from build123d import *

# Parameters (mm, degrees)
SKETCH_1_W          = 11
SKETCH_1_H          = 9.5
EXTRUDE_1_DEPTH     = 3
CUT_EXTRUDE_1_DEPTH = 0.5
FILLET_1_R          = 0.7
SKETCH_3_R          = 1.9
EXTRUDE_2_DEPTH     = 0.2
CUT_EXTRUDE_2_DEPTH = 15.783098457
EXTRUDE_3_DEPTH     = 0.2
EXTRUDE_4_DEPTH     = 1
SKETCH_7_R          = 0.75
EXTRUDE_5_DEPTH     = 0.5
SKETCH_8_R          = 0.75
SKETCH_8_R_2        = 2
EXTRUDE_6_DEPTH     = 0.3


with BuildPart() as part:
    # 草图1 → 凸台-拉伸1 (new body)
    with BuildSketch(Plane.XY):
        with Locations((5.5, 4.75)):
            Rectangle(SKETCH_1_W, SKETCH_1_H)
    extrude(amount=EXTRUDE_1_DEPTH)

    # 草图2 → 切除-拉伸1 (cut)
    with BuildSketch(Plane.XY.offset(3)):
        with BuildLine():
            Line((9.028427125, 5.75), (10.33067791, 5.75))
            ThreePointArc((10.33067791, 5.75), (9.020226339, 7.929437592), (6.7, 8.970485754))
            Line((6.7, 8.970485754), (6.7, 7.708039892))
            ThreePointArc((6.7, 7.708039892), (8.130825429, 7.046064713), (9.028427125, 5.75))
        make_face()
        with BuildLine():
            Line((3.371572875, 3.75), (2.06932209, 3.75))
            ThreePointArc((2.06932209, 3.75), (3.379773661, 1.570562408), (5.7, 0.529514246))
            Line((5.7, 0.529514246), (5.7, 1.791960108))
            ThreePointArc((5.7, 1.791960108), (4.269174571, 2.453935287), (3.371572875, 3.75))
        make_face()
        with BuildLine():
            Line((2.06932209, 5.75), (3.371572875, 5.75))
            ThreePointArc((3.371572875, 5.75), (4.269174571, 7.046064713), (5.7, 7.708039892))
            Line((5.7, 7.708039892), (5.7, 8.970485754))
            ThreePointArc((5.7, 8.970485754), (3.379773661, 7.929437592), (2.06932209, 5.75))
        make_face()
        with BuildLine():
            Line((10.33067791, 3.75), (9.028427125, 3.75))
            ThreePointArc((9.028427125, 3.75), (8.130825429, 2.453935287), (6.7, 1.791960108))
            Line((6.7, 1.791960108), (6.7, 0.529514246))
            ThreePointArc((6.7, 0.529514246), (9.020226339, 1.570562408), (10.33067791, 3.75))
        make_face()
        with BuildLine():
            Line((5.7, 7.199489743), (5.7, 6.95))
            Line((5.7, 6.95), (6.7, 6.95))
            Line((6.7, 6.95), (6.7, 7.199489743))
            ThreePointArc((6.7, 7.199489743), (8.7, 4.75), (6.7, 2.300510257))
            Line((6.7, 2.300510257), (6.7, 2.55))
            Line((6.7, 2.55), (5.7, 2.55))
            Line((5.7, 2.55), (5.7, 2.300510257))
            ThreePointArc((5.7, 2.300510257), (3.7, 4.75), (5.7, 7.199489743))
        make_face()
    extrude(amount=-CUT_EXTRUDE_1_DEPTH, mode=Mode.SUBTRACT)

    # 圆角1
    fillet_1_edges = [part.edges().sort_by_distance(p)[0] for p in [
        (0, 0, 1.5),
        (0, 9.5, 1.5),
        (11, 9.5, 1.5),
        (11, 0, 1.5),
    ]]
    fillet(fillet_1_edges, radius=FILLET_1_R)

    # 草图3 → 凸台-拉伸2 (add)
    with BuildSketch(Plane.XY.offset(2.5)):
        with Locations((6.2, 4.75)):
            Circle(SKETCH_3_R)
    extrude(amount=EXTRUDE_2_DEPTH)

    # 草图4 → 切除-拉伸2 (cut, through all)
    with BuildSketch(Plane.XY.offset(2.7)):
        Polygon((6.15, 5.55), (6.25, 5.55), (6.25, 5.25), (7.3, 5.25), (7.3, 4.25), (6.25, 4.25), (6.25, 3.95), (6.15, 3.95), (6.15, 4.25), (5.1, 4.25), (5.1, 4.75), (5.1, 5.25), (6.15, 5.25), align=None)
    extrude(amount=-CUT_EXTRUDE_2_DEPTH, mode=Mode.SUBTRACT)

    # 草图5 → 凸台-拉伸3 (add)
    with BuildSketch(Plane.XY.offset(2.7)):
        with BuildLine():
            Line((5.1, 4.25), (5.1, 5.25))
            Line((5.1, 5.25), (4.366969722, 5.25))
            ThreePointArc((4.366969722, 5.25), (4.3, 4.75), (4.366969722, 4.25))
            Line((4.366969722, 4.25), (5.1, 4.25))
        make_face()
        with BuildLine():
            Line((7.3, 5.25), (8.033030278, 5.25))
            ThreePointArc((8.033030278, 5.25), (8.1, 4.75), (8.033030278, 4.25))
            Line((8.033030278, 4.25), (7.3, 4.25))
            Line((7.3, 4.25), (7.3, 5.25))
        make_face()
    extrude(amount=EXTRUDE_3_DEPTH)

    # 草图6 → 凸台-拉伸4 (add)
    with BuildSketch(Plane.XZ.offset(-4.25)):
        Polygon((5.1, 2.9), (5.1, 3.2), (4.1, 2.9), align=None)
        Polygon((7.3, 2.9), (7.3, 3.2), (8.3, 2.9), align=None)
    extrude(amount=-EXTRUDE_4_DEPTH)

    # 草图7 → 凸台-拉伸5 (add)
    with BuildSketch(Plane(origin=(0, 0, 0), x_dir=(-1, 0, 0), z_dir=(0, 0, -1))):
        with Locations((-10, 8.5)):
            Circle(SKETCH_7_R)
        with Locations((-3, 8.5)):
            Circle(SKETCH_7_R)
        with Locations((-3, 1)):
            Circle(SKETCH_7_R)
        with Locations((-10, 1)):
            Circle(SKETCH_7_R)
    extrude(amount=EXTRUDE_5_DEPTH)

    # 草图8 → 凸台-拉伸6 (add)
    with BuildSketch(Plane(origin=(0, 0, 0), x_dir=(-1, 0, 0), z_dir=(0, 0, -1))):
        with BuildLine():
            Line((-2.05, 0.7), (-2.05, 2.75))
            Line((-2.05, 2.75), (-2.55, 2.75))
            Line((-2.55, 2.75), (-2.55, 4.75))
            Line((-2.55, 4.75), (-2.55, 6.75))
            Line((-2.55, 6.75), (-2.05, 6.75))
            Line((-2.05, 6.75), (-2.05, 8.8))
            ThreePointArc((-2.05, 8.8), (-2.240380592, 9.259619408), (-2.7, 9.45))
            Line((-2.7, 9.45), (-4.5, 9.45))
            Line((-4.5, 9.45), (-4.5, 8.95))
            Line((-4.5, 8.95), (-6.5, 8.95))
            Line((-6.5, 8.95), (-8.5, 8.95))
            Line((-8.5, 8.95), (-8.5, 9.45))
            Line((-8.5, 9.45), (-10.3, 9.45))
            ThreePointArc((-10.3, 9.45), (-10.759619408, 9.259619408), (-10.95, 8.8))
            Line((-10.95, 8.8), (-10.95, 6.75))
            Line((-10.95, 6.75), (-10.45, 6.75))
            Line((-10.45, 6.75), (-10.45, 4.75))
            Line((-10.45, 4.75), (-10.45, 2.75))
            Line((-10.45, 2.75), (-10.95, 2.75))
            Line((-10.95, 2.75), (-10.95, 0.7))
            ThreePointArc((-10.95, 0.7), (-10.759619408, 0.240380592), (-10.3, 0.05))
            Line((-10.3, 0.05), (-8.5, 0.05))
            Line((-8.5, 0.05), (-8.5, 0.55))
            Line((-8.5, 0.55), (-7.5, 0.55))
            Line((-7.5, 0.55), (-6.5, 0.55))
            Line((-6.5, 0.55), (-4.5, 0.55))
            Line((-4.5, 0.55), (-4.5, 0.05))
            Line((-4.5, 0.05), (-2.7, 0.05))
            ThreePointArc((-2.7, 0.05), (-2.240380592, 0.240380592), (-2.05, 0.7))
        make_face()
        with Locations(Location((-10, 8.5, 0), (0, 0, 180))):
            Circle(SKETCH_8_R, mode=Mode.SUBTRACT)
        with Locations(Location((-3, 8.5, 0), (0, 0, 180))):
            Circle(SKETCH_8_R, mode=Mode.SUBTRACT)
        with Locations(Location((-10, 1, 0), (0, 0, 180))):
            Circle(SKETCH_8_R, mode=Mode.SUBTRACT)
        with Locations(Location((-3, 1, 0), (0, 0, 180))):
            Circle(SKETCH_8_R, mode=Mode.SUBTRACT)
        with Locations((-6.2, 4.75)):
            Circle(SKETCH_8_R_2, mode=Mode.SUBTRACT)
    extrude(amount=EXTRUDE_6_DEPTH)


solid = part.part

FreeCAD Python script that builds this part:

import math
import FreeCAD as App
import Part
import Sketcher
from FreeCAD import Vector


def edges_at(feature, points):
    """Names of the edges that pass closest to the given points."""
    edges = feature.Shape.Edges
    near = lambda p: min(range(len(edges)), key=lambda i: edges[i].distToShape(Part.Vertex(*p))[0])
    return sorted({f"Edge{near(p) + 1}" for p in points})

doc = App.newDocument("Part")
body = doc.addObject("PartDesign::Body", "Body")

# Sketch on XY plane
sketch1 = body.newObject("Sketcher::SketchObject", "Sketch")
sketch1.AttachmentSupport = (doc.getObject("XY_Plane"), [""])
sketch1.MapMode = "FlatFace"
sketch1.addGeometry(Part.LineSegment(Vector(0, 9.5, 0), Vector(0, 0, 0)), False)
sketch1.addGeometry(Part.LineSegment(Vector(0, 0, 0), Vector(11, 0, 0)), False)
sketch1.addGeometry(Part.LineSegment(Vector(11, 0, 0), Vector(11, 9.5, 0)), False)
sketch1.addGeometry(Part.LineSegment(Vector(11, 9.5, 0), Vector(0, 9.5, 0)), False)
sketch1.addConstraint(Sketcher.Constraint("Coincident", 0, 2, 1, 1))
sketch1.addConstraint(Sketcher.Constraint("Coincident", 1, 2, 2, 1))
sketch1.addConstraint(Sketcher.Constraint("Coincident", 2, 2, 3, 1))
sketch1.addConstraint(Sketcher.Constraint("Coincident", 3, 2, 0, 1))
sketch1.addConstraint(Sketcher.Constraint("Vertical", 0))
sketch1.addConstraint(Sketcher.Constraint("Horizontal", 1))
sketch1.addConstraint(Sketcher.Constraint("Vertical", 2))
sketch1.addConstraint(Sketcher.Constraint("Horizontal", 3))
sketch1.addConstraint(Sketcher.Constraint("Coincident", 0, 2, -1, 1))
sketch1.addConstraint(Sketcher.Constraint("DistanceX", 1, 1, 1, 2, 11.0))
sketch1.addConstraint(Sketcher.Constraint("DistanceY", 0, 2, 0, 1, 9.5))
pad1 = body.newObject("PartDesign::Pad", "Pad")
pad1.Profile = sketch1
pad1.Length = 3

# Sketch on XY plane
sketch2 = body.newObject("Sketcher::SketchObject", "Sketch001")
sketch2.AttachmentSupport = (doc.getObject("XY_Plane"), [""])
sketch2.MapMode = "FlatFace"
sketch2.AttachmentOffset = App.Placement(Vector(0, 0, 3), App.Rotation())
sketch2.addGeometry(Part.LineSegment(Vector(9.028427, 5.75, 0), Vector(10.330678, 5.75, 0)), False)
sketch2.addGeometry(Part.ArcOfCircle(Part.Circle(Vector(6.2, 4.75, 0), Vector(0, 0, 1), 4.25), math.radians(13.608961), math.radians(83.243673)), False)
sketch2.addGeometry(Part.LineSegment(Vector(6.7, 8.970486, 0), Vector(6.7, 7.70804, 0)), False)
sketch2.addGeometry(Part.ArcOfCircle(Part.Circle(Vector(6.2, 4.75, 0), Vector(0, 0, 1), 3), math.radians(19.471221), math.radians(80.405932)), False)
sketch2.addGeometry(Part.LineSegment(Vector(3.371573, 3.75, 0), Vector(2.069322, 3.75, 0)), False)
sketch2.addGeometry(Part.ArcOfCircle(Part.Circle(Vector(6.2, 4.75, 0), Vector(0, 0, 1), 4.25), math.radians(-166.391039), math.radians(-96.756327)), False)
sketch2.addGeometry(Part.LineSegment(Vector(5.7, 0.529514, 0), Vector(5.7, 1.79196, 0)), False)
sketch2.addGeometry(Part.ArcOfCircle(Part.Circle(Vector(6.2, 4.75, 0), Vector(0, 0, 1), 3), math.radians(-160.528779), math.radians(-99.594068)), False)
sketch2.addGeometry(Part.LineSegment(Vector(2.069322, 5.75, 0), Vector(3.371573, 5.75, 0)), False)
sketch2.addGeometry(Part.ArcOfCircle(Part.Circle(Vector(6.2, 4.75, 0), Vector(0, 0, 1), 3), math.radians(99.594068), math.radians(160.528779)), False)
sketch2.addGeometry(Part.LineSegment(Vector(5.7, 7.70804, 0), Vector(5.7, 8.970486, 0)), False)
sketch2.addGeometry(Part.ArcOfCircle(Part.Circle(Vector(6.2, 4.75, 0), Vector(0, 0, 1), 4.25), math.radians(96.756327), math.radians(166.391039)), False)
sketch2.addGeometry(Part.LineSegment(Vector(10.330678, 3.75, 0), Vector(9.028427, 3.75, 0)), False)
sketch2.addGeometry(Part.ArcOfCircle(Part.Circle(Vector(6.2, 4.75, 0), Vector(0, 0, 1), 3), math.radians(-80.405932), math.radians(-19.471221)), False)
sketch2.addGeometry(Part.LineSegment(Vector(6.7, 1.79196, 0), Vector(6.7, 0.529514, 0)), False)
sketch2.addGeometry(Part.ArcOfCircle(Part.Circle(Vector(6.2, 4.75, 0), Vector(0, 0, 1), 4.25), math.radians(-83.243673), math.radians(-13.608961)), False)
sketch2.addGeometry(Part.LineSegment(Vector(5.7, 6.95, 0), Vector(5.7, 7.19949, 0)), False)
sketch2.addGeometry(Part.ArcOfCircle(Part.Circle(Vector(6.2, 4.75, 0), Vector(0, 0, 1), 2.5), math.radians(101.536959), math.radians(258.463041)), False)
sketch2.addGeometry(Part.LineSegment(Vector(5.7, 2.30051, 0), Vector(5.7, 2.55, 0)), False)
sketch2.addGeometry(Part.LineSegment(Vector(5.7, 2.55, 0), Vector(6.7, 2.55, 0)), False)
sketch2.addGeometry(Part.LineSegment(Vector(6.7, 2.55, 0), Vector(6.7, 2.30051, 0)), False)
sketch2.addGeometry(Part.ArcOfCircle(Part.Circle(Vector(6.2, 4.75, 0), Vector(0, 0, 1), 2.5), math.radians(-78.463041), math.radians(78.463041)), False)
sketch2.addGeometry(Part.LineSegment(Vector(6.7, 7.19949, 0), Vector(6.7, 6.95, 0)), False)
sketch2.addGeometry(Part.LineSegment(Vector(6.7, 6.95, 0), Vector(5.7, 6.95, 0)), False)
sketch2.addConstraint(Sketcher.Constraint("Coincident", 0, 2, 1, 1))
sketch2.addConstraint(Sketcher.Constraint("Coincident", 1, 2, 2, 1))
sketch2.addConstraint(Sketcher.Constraint("Coincident", 2, 2, 3, 2))
sketch2.addConstraint(Sketcher.Constraint("Coincident", 3, 1, 0, 1))
sketch2.addConstraint(Sketcher.Constraint("Coincident", 4, 2, 5, 1))
sketch2.addConstraint(Sketcher.Constraint("Coincident", 5, 2, 6, 1))
sketch2.addConstraint(Sketcher.Constraint("Coincident", 6, 2, 7, 2))
sketch2.addConstraint(Sketcher.Constraint("Coincident", 7, 1, 4, 1))
sketch2.addConstraint(Sketcher.Constraint("Coincident", 8, 2, 9, 2))
sketch2.addConstraint(Sketcher.Constraint("Coincident", 9, 1, 10, 1))
sketch2.addConstraint(Sketcher.Constraint("Coincident", 10, 2, 11, 1))
sketch2.addConstraint(Sketcher.Constraint("Coincident", 11, 2, 8, 1))
sketch2.addConstraint(Sketcher.Constraint("Coincident", 12, 2, 13, 2))
sketch2.addConstraint(Sketcher.Constraint("Coincident", 13, 1, 14, 1))
sketch2.addConstraint(Sketcher.Constraint("Coincident", 14, 2, 15, 1))
sketch2.addConstraint(Sketcher.Constraint("Coincident", 15, 2, 12, 1))
sketch2.addConstraint(Sketcher.Constraint("Coincident", 16, 2, 17, 1))
sketch2.addConstraint(Sketcher.Constraint("Coincident", 17, 2, 18, 1))
sketch2.addConstraint(Sketcher.Constraint("Coincident", 18, 2, 19, 1))
sketch2.addConstraint(Sketcher.Constraint("Coincident", 19, 2, 20, 1))
sketch2.addConstraint(Sketcher.Constraint("Coincident", 20, 2, 21, 1))
sketch2.addConstraint(Sketcher.Constraint("Coincident", 21, 2, 22, 1))
sketch2.addConstraint(Sketcher.Constraint("Coincident", 22, 2, 23, 1))
sketch2.addConstraint(Sketcher.Constraint("Coincident", 23, 2, 16, 1))
sketch2.addConstraint(Sketcher.Constraint("Horizontal", 0))
sketch2.addConstraint(Sketcher.Constraint("Vertical", 2))
sketch2.addConstraint(Sketcher.Constraint("Horizontal", 4))
sketch2.addConstraint(Sketcher.Constraint("Vertical", 6))
sketch2.addConstraint(Sketcher.Constraint("Horizontal", 8))
sketch2.addConstraint(Sketcher.Constraint("Vertical", 10))
sketch2.addConstraint(Sketcher.Constraint("Horizontal", 12))
sketch2.addConstraint(Sketcher.Constraint("Vertical", 14))
sketch2.addConstraint(Sketcher.Constraint("Vertical", 16))
sketch2.addConstraint(Sketcher.Constraint("Vertical", 18))
sketch2.addConstraint(Sketcher.Constraint("Horizontal", 19))
sketch2.addConstraint(Sketcher.Constraint("Vertical", 20))
sketch2.addConstraint(Sketcher.Constraint("Vertical", 22))
sketch2.addConstraint(Sketcher.Constraint("Horizontal", 23))
sketch2.addConstraint(Sketcher.Constraint("Coincident", 3, 3, 1, 3))
sketch2.addConstraint(Sketcher.Constraint("Coincident", 5, 3, 1, 3))
sketch2.addConstraint(Sketcher.Constraint("Coincident", 7, 3, 1, 3))
sketch2.addConstraint(Sketcher.Constraint("Coincident", 9, 3, 1, 3))
sketch2.addConstraint(Sketcher.Constraint("Coincident", 11, 3, 1, 3))
sketch2.addConstraint(Sketcher.Constraint("Coincident", 13, 3, 1, 3))
sketch2.addConstraint(Sketcher.Constraint("Coincident", 15, 3, 1, 3))
sketch2.addConstraint(Sketcher.Constraint("Coincident", 17, 3, 1, 3))
sketch2.addConstraint(Sketcher.Constraint("Coincident", 21, 3, 1, 3))
sketch2.addConstraint(Sketcher.Constraint("Equal", 1, 5))
sketch2.addConstraint(Sketcher.Constraint("Equal", 3, 7))
sketch2.addConstraint(Sketcher.Constraint("Equal", 7, 9))
sketch2.addConstraint(Sketcher.Constraint("Equal", 5, 11))
sketch2.addConstraint(Sketcher.Constraint("Equal", 9, 13))
sketch2.addConstraint(Sketcher.Constraint("Equal", 11, 15))
sketch2.addConstraint(Sketcher.Constraint("Equal", 17, 21))
sketch2.addConstraint(Sketcher.Constraint("Horizontal", 3, 1, 8, 2))
sketch2.addConstraint(Sketcher.Constraint("Horizontal", 2, 2, 9, 1))
sketch2.addConstraint(Sketcher.Constraint("Horizontal", 7, 1, 12, 2))
sketch2.addConstraint(Sketcher.Constraint("Horizontal", 6, 2, 13, 1))
sketch2.addConstraint(Sketcher.Constraint("Horizontal", 17, 2, 20, 2))
sketch2.addConstraint(Sketcher.Constraint("Horizontal", 16, 2, 21, 2))
sketch2.addConstraint(Sketcher.Constraint("Vertical", 7, 1, 8, 2))
sketch2.addConstraint(Sketcher.Constraint("Vertical", 6, 2, 9, 1))
sketch2.addConstraint(Sketcher.Constraint("Vertical", 10, 2, 16, 2))
sketch2.addConstraint(Sketcher.Constraint("Vertical", 16, 2, 17, 2))
sketch2.addConstraint(Sketcher.Constraint("Equal", 16, 18))
sketch2.addConstraint(Sketcher.Constraint("Radius", 3, 3.0))
sketch2.addConstraint(Sketcher.Constraint("Radius", 17, 2.5))
sketch2.addConstraint(Sketcher.Constraint("DistanceX", 19, 1, 19, 2, 1.0))
sketch2.addConstraint(Sketcher.Constraint("Radius", 1, 4.25))
sketch2.addConstraint(Sketcher.Constraint("DistanceY", 1, 3, 0, 2, 1.0))
sketch2.addConstraint(Sketcher.Constraint("DistanceX", -1, 1, 1, 3, 6.2))
sketch2.addConstraint(Sketcher.Constraint("DistanceY", -1, 1, 1, 3, 4.75))
sketch2.addConstraint(Sketcher.Constraint("DistanceY", -1, 1, 18, 2, 2.55))
pocket1 = body.newObject("PartDesign::Pocket", "Pocket")
pocket1.Profile = sketch2
pocket1.Length = 0.5
doc.recompute()

fillet = body.newObject("PartDesign::Fillet", "Fillet")
fillet.Base = (pocket1, edges_at(pocket1, [
    (0, 0, 1.5),
    (0, 9.5, 1.5),
    (11, 9.5, 1.5),
    (11, 0, 1.5),
]))
fillet.Radius = 0.7

# Sketch on XY plane
sketch3 = body.newObject("Sketcher::SketchObject", "Sketch002")
sketch3.AttachmentSupport = (doc.getObject("XY_Plane"), [""])
sketch3.MapMode = "FlatFace"
sketch3.AttachmentOffset = App.Placement(Vector(0, 0, 2.5), App.Rotation())
sketch3.addGeometry(Part.Circle(Vector(6.2, 4.75, 0), Vector(0, 0, 1), 1.9), False)
sketch3.addConstraint(Sketcher.Constraint("Diameter", 0, 3.8))
sketch3.addConstraint(Sketcher.Constraint("DistanceX", -1, 1, 0, 3, 6.2))
sketch3.addConstraint(Sketcher.Constraint("DistanceY", -1, 1, 0, 3, 4.75))
pad2 = body.newObject("PartDesign::Pad", "Pad001")
pad2.Profile = sketch3
pad2.Length = 0.2

# Sketch on XY plane
sketch4 = body.newObject("Sketcher::SketchObject", "Sketch003")
sketch4.AttachmentSupport = (doc.getObject("XY_Plane"), [""])
sketch4.MapMode = "FlatFace"
sketch4.AttachmentOffset = App.Placement(Vector(0, 0, 2.7), App.Rotation())
sketch4.addGeometry(Part.LineSegment(Vector(6.25, 5.55, 0), Vector(6.15, 5.55, 0)), False)
sketch4.addGeometry(Part.LineSegment(Vector(6.15, 5.55, 0), Vector(6.15, 5.25, 0)), False)
sketch4.addGeometry(Part.LineSegment(Vector(6.15, 5.25, 0), Vector(5.1, 5.25, 0)), False)
sketch4.addGeometry(Part.LineSegment(Vector(5.1, 5.25, 0), Vector(5.1, 4.25, 0)), False)
sketch4.addGeometry(Part.LineSegment(Vector(5.1, 4.25, 0), Vector(6.15, 4.25, 0)), False)
sketch4.addGeometry(Part.LineSegment(Vector(6.15, 4.25, 0), Vector(6.15, 3.95, 0)), False)
sketch4.addGeometry(Part.LineSegment(Vector(6.15, 3.95, 0), Vector(6.25, 3.95, 0)), False)
sketch4.addGeometry(Part.LineSegment(Vector(6.25, 3.95, 0), Vector(6.25, 4.25, 0)), False)
sketch4.addGeometry(Part.LineSegment(Vector(6.25, 4.25, 0), Vector(7.3, 4.25, 0)), False)
sketch4.addGeometry(Part.LineSegment(Vector(7.3, 4.25, 0), Vector(7.3, 5.25, 0)), False)
sketch4.addGeometry(Part.LineSegment(Vector(7.3, 5.25, 0), Vector(6.25, 5.25, 0)), False)
sketch4.addGeometry(Part.LineSegment(Vector(6.25, 5.25, 0), Vector(6.25, 5.55, 0)), False)
sketch4.addConstraint(Sketcher.Constraint("Coincident", 0, 2, 1, 1))
sketch4.addConstraint(Sketcher.Constraint("Coincident", 1, 2, 2, 1))
sketch4.addConstraint(Sketcher.Constraint("Coincident", 2, 2, 3, 1))
sketch4.addConstraint(Sketcher.Constraint("Coincident", 3, 2, 4, 1))
sketch4.addConstraint(Sketcher.Constraint("Coincident", 4, 2, 5, 1))
sketch4.addConstraint(Sketcher.Constraint("Coincident", 5, 2, 6, 1))
sketch4.addConstraint(Sketcher.Constraint("Coincident", 6, 2, 7, 1))
sketch4.addConstraint(Sketcher.Constraint("Coincident", 7, 2, 8, 1))
sketch4.addConstraint(Sketcher.Constraint("Coincident", 8, 2, 9, 1))
sketch4.addConstraint(Sketcher.Constraint("Coincident", 9, 2, 10, 1))
sketch4.addConstraint(Sketcher.Constraint("Coincident", 10, 2, 11, 1))
sketch4.addConstraint(Sketcher.Constraint("Coincident", 11, 2, 0, 1))
sketch4.addConstraint(Sketcher.Constraint("Horizontal", 0))
sketch4.addConstraint(Sketcher.Constraint("Vertical", 1))
sketch4.addConstraint(Sketcher.Constraint("Horizontal", 2))
sketch4.addConstraint(Sketcher.Constraint("Vertical", 3))
sketch4.addConstraint(Sketcher.Constraint("Horizontal", 4))
sketch4.addConstraint(Sketcher.Constraint("Vertical", 5))
sketch4.addConstraint(Sketcher.Constraint("Horizontal", 6))
sketch4.addConstraint(Sketcher.Constraint("Vertical", 7))
sketch4.addConstraint(Sketcher.Constraint("Horizontal", 8))
sketch4.addConstraint(Sketcher.Constraint("Vertical", 9))
sketch4.addConstraint(Sketcher.Constraint("Horizontal", 10))
sketch4.addConstraint(Sketcher.Constraint("Vertical", 11))
sketch4.addConstraint(Sketcher.Constraint("Horizontal", 4, 2, 7, 2))
sketch4.addConstraint(Sketcher.Constraint("Horizontal", 2, 2, 9, 2))
sketch4.addConstraint(Sketcher.Constraint("Vertical", 1, 2, 4, 2))
sketch4.addConstraint(Sketcher.Constraint("Vertical", 7, 2, 10, 2))
sketch4.addConstraint(Sketcher.Constraint("Equal", 4, 8))
sketch4.addConstraint(Sketcher.Constraint("Equal", 1, 5))
sketch4.addConstraint(Sketcher.Constraint("DistanceY", 3, 2, 3, 1, 1.0))
sketch4.addConstraint(Sketcher.Constraint("DistanceX", 0, 2, 0, 1, 0.1))
sketch4.addConstraint(Sketcher.Constraint("DistanceY", 1, 2, 1, 1, 0.3))
sketch4.addConstraint(Sketcher.Constraint("DistanceX", 2, 2, 2, 1, 1.05))
sketch4.addConstraint(Sketcher.Constraint("DistanceX", -1, 1, 2, 2, 5.1))
sketch4.addConstraint(Sketcher.Constraint("DistanceY", -1, 1, 0, 2, 5.55))
pocket2 = body.newObject("PartDesign::Pocket", "Pocket001")
pocket2.Profile = sketch4
pocket2.Type = "ThroughAll"

# Sketch on XY plane
sketch5 = body.newObject("Sketcher::SketchObject", "Sketch004")
sketch5.AttachmentSupport = (doc.getObject("XY_Plane"), [""])
sketch5.MapMode = "FlatFace"
sketch5.AttachmentOffset = App.Placement(Vector(0, 0, 2.7), App.Rotation())
sketch5.addGeometry(Part.LineSegment(Vector(5.1, 4.25, 0), Vector(5.1, 5.25, 0)), False)
sketch5.addGeometry(Part.LineSegment(Vector(5.1, 5.25, 0), Vector(4.36697, 5.25, 0)), False)
sketch5.addGeometry(Part.ArcOfCircle(Part.Circle(Vector(6.2, 4.75, 0), Vector(0, 0, 1), 1.9), math.radians(164.742477), math.radians(195.257523)), False)
sketch5.addGeometry(Part.LineSegment(Vector(4.36697, 4.25, 0), Vector(5.1, 4.25, 0)), False)
sketch5.addGeometry(Part.LineSegment(Vector(8.03303, 5.25, 0), Vector(7.3, 5.25, 0)), False)
sketch5.addGeometry(Part.LineSegment(Vector(7.3, 5.25, 0), Vector(7.3, 4.25, 0)), False)
sketch5.addGeometry(Part.LineSegment(Vector(7.3, 4.25, 0), Vector(8.03303, 4.25, 0)), False)
sketch5.addGeometry(Part.ArcOfCircle(Part.Circle(Vector(6.2, 4.75, 0), Vector(0, 0, 1), 1.9), math.radians(-15.257523), math.radians(15.257523)), False)
sketch5.addConstraint(Sketcher.Constraint("Coincident", 0, 2, 1, 1))
sketch5.addConstraint(Sketcher.Constraint("Coincident", 1, 2, 2, 1))
sketch5.addConstraint(Sketcher.Constraint("Coincident", 2, 2, 3, 1))
sketch5.addConstraint(Sketcher.Constraint("Coincident", 3, 2, 0, 1))
sketch5.addConstraint(Sketcher.Constraint("Coincident", 4, 2, 5, 1))
sketch5.addConstraint(Sketcher.Constraint("Coincident", 5, 2, 6, 1))
sketch5.addConstraint(Sketcher.Constraint("Coincident", 6, 2, 7, 1))
sketch5.addConstraint(Sketcher.Constraint("Coincident", 7, 2, 4, 1))
sketch5.addConstraint(Sketcher.Constraint("Vertical", 0))
sketch5.addConstraint(Sketcher.Constraint("Horizontal", 1))
sketch5.addConstraint(Sketcher.Constraint("Horizontal", 3))
sketch5.addConstraint(Sketcher.Constraint("Horizontal", 4))
sketch5.addConstraint(Sketcher.Constraint("Vertical", 5))
sketch5.addConstraint(Sketcher.Constraint("Horizontal", 6))
sketch5.addConstraint(Sketcher.Constraint("Coincident", 7, 3, 2, 3))
sketch5.addConstraint(Sketcher.Constraint("Equal", 2, 7))
sketch5.addConstraint(Sketcher.Constraint("Horizontal", 1, 2, 4, 2))
sketch5.addConstraint(Sketcher.Constraint("Horizontal", 3, 2, 5, 2))
sketch5.addConstraint(Sketcher.Constraint("Vertical", 1, 2, 2, 2))
sketch5.addConstraint(Sketcher.Constraint("Equal", 3, 4))
sketch5.addConstraint(Sketcher.Constraint("Radius", 2, 1.9))
sketch5.addConstraint(Sketcher.Constraint("DistanceY", 0, 1, 0, 2, 1.0))
sketch5.addConstraint(Sketcher.Constraint("DistanceX", -1, 1, 2, 3, 6.2))
sketch5.addConstraint(Sketcher.Constraint("DistanceX", -1, 1, 0, 2, 5.1))
sketch5.addConstraint(Sketcher.Constraint("DistanceY", -1, 1, 2, 3, 4.75))
pad3 = body.newObject("PartDesign::Pad", "Pad002")
pad3.Profile = sketch5
pad3.Length = 0.2

# Sketch on XZ plane
sketch6 = body.newObject("Sketcher::SketchObject", "Sketch005")
sketch6.AttachmentSupport = (doc.getObject("XZ_Plane"), [""])
sketch6.MapMode = "FlatFace"
sketch6.AttachmentOffset = App.Placement(Vector(0, 0, -4.25), App.Rotation())
sketch6.addGeometry(Part.LineSegment(Vector(5.1, 2.9, 0), Vector(5.1, 3.2, 0)), False)
sketch6.addGeometry(Part.LineSegment(Vector(5.1, 3.2, 0), Vector(4.1, 2.9, 0)), False)
sketch6.addGeometry(Part.LineSegment(Vector(4.1, 2.9, 0), Vector(5.1, 2.9, 0)), False)
sketch6.addGeometry(Part.LineSegment(Vector(7.3, 3.2, 0), Vector(7.3, 2.9, 0)), False)
sketch6.addGeometry(Part.LineSegment(Vector(7.3, 2.9, 0), Vector(8.3, 2.9, 0)), False)
sketch6.addGeometry(Part.LineSegment(Vector(8.3, 2.9, 0), Vector(7.3, 3.2, 0)), False)
sketch6.addConstraint(Sketcher.Constraint("Coincident", 0, 2, 1, 1))
sketch6.addConstraint(Sketcher.Constraint("Coincident", 1, 2, 2, 1))
sketch6.addConstraint(Sketcher.Constraint("Coincident", 2, 2, 0, 1))
sketch6.addConstraint(Sketcher.Constraint("Coincident", 3, 2, 4, 1))
sketch6.addConstraint(Sketcher.Constraint("Coincident", 4, 2, 5, 1))
sketch6.addConstraint(Sketcher.Constraint("Coincident", 5, 2, 3, 1))
sketch6.addConstraint(Sketcher.Constraint("Vertical", 0))
sketch6.addConstraint(Sketcher.Constraint("Horizontal", 2))
sketch6.addConstraint(Sketcher.Constraint("Vertical", 3))
sketch6.addConstraint(Sketcher.Constraint("Horizontal", 4))
sketch6.addConstraint(Sketcher.Constraint("Horizontal", 2, 2, 3, 2))
sketch6.addConstraint(Sketcher.Constraint("Horizontal", 0, 2, 5, 2))
sketch6.addConstraint(Sketcher.Constraint("Equal", 2, 4))
sketch6.addConstraint(Sketcher.Constraint("DistanceX", 2, 1, 2, 2, 1.0))
sketch6.addConstraint(Sketcher.Constraint("DistanceY", 0, 1, 0, 2, 0.3))
sketch6.addConstraint(Sketcher.Constraint("DistanceX", -1, 1, 0, 2, 5.1))
sketch6.addConstraint(Sketcher.Constraint("DistanceY", -1, 1, 0, 2, 3.2))
sketch6.addConstraint(Sketcher.Constraint("DistanceX", -1, 1, 3, 2, 7.3))
pad4 = body.newObject("PartDesign::Pad", "Pad003")
pad4.Profile = sketch6
pad4.Length = 1
pad4.Reversed = True

# Sketch on XY plane
sketch7 = body.newObject("Sketcher::SketchObject", "Sketch006")
sketch7.AttachmentSupport = (doc.getObject("XY_Plane"), [""])
sketch7.MapMode = "FlatFace"
sketch7.addGeometry(Part.Circle(Vector(10, 8.5, 0), Vector(0, 0, 1), 0.75), False)
sketch7.addGeometry(Part.Circle(Vector(3, 8.5, 0), Vector(0, 0, 1), 0.75), False)
sketch7.addGeometry(Part.Circle(Vector(3, 1, 0), Vector(0, 0, 1), 0.75), False)
sketch7.addGeometry(Part.Circle(Vector(10, 1, 0), Vector(0, 0, 1), 0.75), False)
sketch7.addConstraint(Sketcher.Constraint("Equal", 0, 1))
sketch7.addConstraint(Sketcher.Constraint("Equal", 1, 2))
sketch7.addConstraint(Sketcher.Constraint("Equal", 2, 3))
sketch7.addConstraint(Sketcher.Constraint("Horizontal", 0, 3, 1, 3))
sketch7.addConstraint(Sketcher.Constraint("Horizontal", 2, 3, 3, 3))
sketch7.addConstraint(Sketcher.Constraint("Vertical", 1, 3, 2, 3))
sketch7.addConstraint(Sketcher.Constraint("Vertical", 0, 3, 3, 3))
sketch7.addConstraint(Sketcher.Constraint("Diameter", 0, 1.5))
sketch7.addConstraint(Sketcher.Constraint("DistanceX", -1, 1, 0, 3, 10.0))
sketch7.addConstraint(Sketcher.Constraint("DistanceX", -1, 1, 1, 3, 3.0))
sketch7.addConstraint(Sketcher.Constraint("DistanceY", -1, 1, 2, 3, 1.0))
sketch7.addConstraint(Sketcher.Constraint("DistanceY", -1, 1, 0, 3, 8.5))
pad5 = body.newObject("PartDesign::Pad", "Pad004")
pad5.Profile = sketch7
pad5.Length = 0.5
pad5.Reversed = True

# Sketch on XY plane
sketch8 = body.newObject("Sketcher::SketchObject", "Sketch007")
sketch8.AttachmentSupport = (doc.getObject("XY_Plane"), [""])
sketch8.MapMode = "FlatFace"
sketch8.addGeometry(Part.LineSegment(Vector(2.05, 0.7, 0), Vector(2.05, 2.75, 0)), False)
sketch8.addGeometry(Part.LineSegment(Vector(2.05, 2.75, 0), Vector(2.55, 2.75, 0)), False)
sketch8.addGeometry(Part.LineSegment(Vector(2.55, 2.75, 0), Vector(2.55, 6.75, 0)), False)
sketch8.addGeometry(Part.LineSegment(Vector(2.55, 6.75, 0), Vector(2.05, 6.75, 0)), False)
sketch8.addGeometry(Part.LineSegment(Vector(2.05, 6.75, 0), Vector(2.05, 8.8, 0)), False)
sketch8.addGeometry(Part.ArcOfCircle(Part.Circle(Vector(2.7, 8.8, 0), Vector(0, 0, 1), 0.65), math.radians(90), math.radians(180)), False)
sketch8.addGeometry(Part.LineSegment(Vector(2.7, 9.45, 0), Vector(4.5, 9.45, 0)), False)
sketch8.addGeometry(Part.LineSegment(Vector(4.5, 9.45, 0), Vector(4.5, 8.95, 0)), False)
sketch8.addGeometry(Part.LineSegment(Vector(4.5, 8.95, 0), Vector(8.5, 8.95, 0)), False)
sketch8.addGeometry(Part.LineSegment(Vector(8.5, 8.95, 0), Vector(8.5, 9.45, 0)), False)
sketch8.addGeometry(Part.LineSegment(Vector(8.5, 9.45, 0), Vector(10.3, 9.45, 0)), False)
sketch8.addGeometry(Part.ArcOfCircle(Part.Circle(Vector(10.3, 8.8, 0), Vector(0, 0, 1), 0.65), math.radians(0), math.radians(90)), False)
sketch8.addGeometry(Part.LineSegment(Vector(10.95, 8.8, 0), Vector(10.95, 6.75, 0)), False)
sketch8.addGeometry(Part.LineSegment(Vector(10.95, 6.75, 0), Vector(10.45, 6.75, 0)), False)
sketch8.addGeometry(Part.LineSegment(Vector(10.45, 6.75, 0), Vector(10.45, 2.75, 0)), False)
sketch8.addGeometry(Part.LineSegment(Vector(10.45, 2.75, 0), Vector(10.95, 2.75, 0)), False)
sketch8.addGeometry(Part.LineSegment(Vector(10.95, 2.75, 0), Vector(10.95, 0.7, 0)), False)
sketch8.addGeometry(Part.ArcOfCircle(Part.Circle(Vector(10.3, 0.7, 0), Vector(0, 0, 1), 0.65), math.radians(-90), math.radians(0)), False)
sketch8.addGeometry(Part.LineSegment(Vector(10.3, 0.05, 0), Vector(8.5, 0.05, 0)), False)
sketch8.addGeometry(Part.LineSegment(Vector(8.5, 0.05, 0), Vector(8.5, 0.55, 0)), False)
sketch8.addGeometry(Part.LineSegment(Vector(8.5, 0.55, 0), Vector(4.5, 0.55, 0)), False)
sketch8.addGeometry(Part.LineSegment(Vector(4.5, 0.55, 0), Vector(4.5, 0.05, 0)), False)
sketch8.addGeometry(Part.LineSegment(Vector(4.5, 0.05, 0), Vector(2.7, 0.05, 0)), False)
sketch8.addGeometry(Part.ArcOfCircle(Part.Circle(Vector(2.7, 0.7, 0), Vector(0, 0, 1), 0.65), math.radians(180), math.radians(270)), False)
sketch8.addGeometry(Part.Circle(Vector(10, 1, 0), Vector(0, 0, 1), 0.75), False)
sketch8.addGeometry(Part.Circle(Vector(3, 1, 0), Vector(0, 0, 1), 0.75), False)
sketch8.addGeometry(Part.Circle(Vector(10, 8.5, 0), Vector(0, 0, 1), 0.75), False)
sketch8.addGeometry(Part.Circle(Vector(6.2, 4.75, 0), Vector(0, 0, 1), 2), False)
sketch8.addGeometry(Part.Circle(Vector(3, 8.5, 0), Vector(0, 0, 1), 0.75), False)
sketch8.addConstraint(Sketcher.Constraint("Coincident", 0, 2, 1, 1))
sketch8.addConstraint(Sketcher.Constraint("Coincident", 1, 2, 2, 1))
sketch8.addConstraint(Sketcher.Constraint("Coincident", 2, 2, 3, 1))
sketch8.addConstraint(Sketcher.Constraint("Coincident", 3, 2, 4, 1))
sketch8.addConstraint(Sketcher.Constraint("Tangent", 4, 2, 5, 2))
sketch8.addConstraint(Sketcher.Constraint("Tangent", 5, 1, 6, 1))
sketch8.addConstraint(Sketcher.Constraint("Coincident", 6, 2, 7, 1))
sketch8.addConstraint(Sketcher.Constraint("Coincident", 7, 2, 8, 1))
sketch8.addConstraint(Sketcher.Constraint("Coincident", 8, 2, 9, 1))
sketch8.addConstraint(Sketcher.Constraint("Coincident", 9, 2, 10, 1))
sketch8.addConstraint(Sketcher.Constraint("Tangent", 10, 2, 11, 2))
sketch8.addConstraint(Sketcher.Constraint("Tangent", 11, 1, 12, 1))
sketch8.addConstraint(Sketcher.Constraint("Coincident", 12, 2, 13, 1))
sketch8.addConstraint(Sketcher.Constraint("Coincident", 13, 2, 14, 1))
sketch8.addConstraint(Sketcher.Constraint("Coincident", 14, 2, 15, 1))
sketch8.addConstraint(Sketcher.Constraint("Coincident", 15, 2, 16, 1))
sketch8.addConstraint(Sketcher.Constraint("Tangent", 16, 2, 17, 2))
sketch8.addConstraint(Sketcher.Constraint("Tangent", 17, 1, 18, 1))
sketch8.addConstraint(Sketcher.Constraint("Coincident", 18, 2, 19, 1))
sketch8.addConstraint(Sketcher.Constraint("Coincident", 19, 2, 20, 1))
sketch8.addConstraint(Sketcher.Constraint("Coincident", 20, 2, 21, 1))
sketch8.addConstraint(Sketcher.Constraint("Coincident", 21, 2, 22, 1))
sketch8.addConstraint(Sketcher.Constraint("Tangent", 22, 2, 23, 2))
sketch8.addConstraint(Sketcher.Constraint("Tangent", 23, 1, 0, 1))
sketch8.addConstraint(Sketcher.Constraint("Vertical", 0))
sketch8.addConstraint(Sketcher.Constraint("Horizontal", 1))
sketch8.addConstraint(Sketcher.Constraint("Vertical", 2))
sketch8.addConstraint(Sketcher.Constraint("Horizontal", 3))
sketch8.addConstraint(Sketcher.Constraint("Vertical", 4))
sketch8.addConstraint(Sketcher.Constraint("Horizontal", 6))
sketch8.addConstraint(Sketcher.Constraint("Vertical", 7))
sketch8.addConstraint(Sketcher.Constraint("Horizontal", 8))
sketch8.addConstraint(Sketcher.Constraint("Vertical", 9))
sketch8.addConstraint(Sketcher.Constraint("Horizontal", 10))
sketch8.addConstraint(Sketcher.Constraint("Vertical", 12))
sketch8.addConstraint(Sketcher.Constraint("Horizontal", 13))
sketch8.addConstraint(Sketcher.Constraint("Vertical", 14))
sketch8.addConstraint(Sketcher.Constraint("Horizontal", 15))
sketch8.addConstraint(Sketcher.Constraint("Vertical", 16))
sketch8.addConstraint(Sketcher.Constraint("Horizontal", 18))
sketch8.addConstraint(Sketcher.Constraint("Vertical", 19))
sketch8.addConstraint(Sketcher.Constraint("Horizontal", 20))
sketch8.addConstraint(Sketcher.Constraint("Vertical", 21))
sketch8.addConstraint(Sketcher.Constraint("Horizontal", 22))
sketch8.addConstraint(Sketcher.Constraint("Equal", 5, 11))
sketch8.addConstraint(Sketcher.Constraint("Equal", 11, 17))
sketch8.addConstraint(Sketcher.Constraint("Equal", 17, 23))
sketch8.addConstraint(Sketcher.Constraint("Equal", 24, 25))
sketch8.addConstraint(Sketcher.Constraint("Equal", 25, 26))
sketch8.addConstraint(Sketcher.Constraint("Equal", 26, 28))
sketch8.addConstraint(Sketcher.Constraint("Horizontal", 5, 3, 11, 3))
sketch8.addConstraint(Sketcher.Constraint("Horizontal", 17, 3, 23, 3))
sketch8.addConstraint(Sketcher.Constraint("Horizontal", 24, 3, 25, 3))
sketch8.addConstraint(Sketcher.Constraint("Horizontal", 26, 3, 28, 3))
sketch8.addConstraint(Sketcher.Constraint("Horizontal", 3, 2, 12, 2))
sketch8.addConstraint(Sketcher.Constraint("Horizontal", 1, 2, 14, 2))
sketch8.addConstraint(Sketcher.Constraint("Vertical", 11, 3, 17, 3))
sketch8.addConstraint(Sketcher.Constraint("Vertical", 5, 3, 23, 3))
sketch8.addConstraint(Sketcher.Constraint("Vertical", 24, 3, 26, 3))
sketch8.addConstraint(Sketcher.Constraint("Vertical", 25, 3, 28, 3))
sketch8.addConstraint(Sketcher.Constraint("Vertical", 9, 2, 18, 2))
sketch8.addConstraint(Sketcher.Constraint("Vertical", 7, 2, 20, 2))
sketch8.addConstraint(Sketcher.Constraint("Equal", 6, 10))
sketch8.addConstraint(Sketcher.Constraint("Equal", 3, 13))
sketch8.addConstraint(Sketcher.Constraint("Equal", 20, 2))
sketch8.addConstraint(Sketcher.Constraint("Equal", 0, 4))
sketch8.addConstraint(Sketcher.Constraint("Equal", 15, 7))
sketch8.addConstraint(Sketcher.Constraint("Equal", 9, 19))
sketch8.addConstraint(Sketcher.Constraint("Diameter", 27, 4.0))
sketch8.addConstraint(Sketcher.Constraint("Diameter", 24, 1.5))
sketch8.addConstraint(Sketcher.Constraint("DistanceX", 8, 1, 8, 2, 4.0))
sketch8.addConstraint(Sketcher.Constraint("Radius", 5, 0.65))
sketch8.addConstraint(Sketcher.Constraint("DistanceX", 1, 1, 1, 2, 0.5))
sketch8.addConstraint(Sketcher.Constraint("DistanceX", 6, 1, 6, 2, 1.8))
sketch8.addConstraint(Sketcher.Constraint("DistanceX", -1, 1, 24, 3, 10.0))
sketch8.addConstraint(Sketcher.Constraint("DistanceY", -1, 1, 24, 3, 1.0))
sketch8.addConstraint(Sketcher.Constraint("DistanceX", -1, 1, 25, 3, 3.0))
sketch8.addConstraint(Sketcher.Constraint("DistanceY", 0, 2, 27, 3, 2.0))
sketch8.addConstraint(Sketcher.Constraint("DistanceY", 0, 1, 0, 2, 2.05))
sketch8.addConstraint(Sketcher.Constraint("DistanceX", -1, 1, 5, 3, 2.7))
sketch8.addConstraint(Sketcher.Constraint("DistanceY", -1, 1, 5, 3, 8.8))
sketch8.addConstraint(Sketcher.Constraint("DistanceY", -1, 1, 26, 3, 8.5))
sketch8.addConstraint(Sketcher.Constraint("DistanceX", -1, 1, 27, 3, 6.2))
pad6 = body.newObject("PartDesign::Pad", "Pad005")
pad6.Profile = sketch8
pad6.Length = 0.3
pad6.Reversed = True

doc.recompute()
